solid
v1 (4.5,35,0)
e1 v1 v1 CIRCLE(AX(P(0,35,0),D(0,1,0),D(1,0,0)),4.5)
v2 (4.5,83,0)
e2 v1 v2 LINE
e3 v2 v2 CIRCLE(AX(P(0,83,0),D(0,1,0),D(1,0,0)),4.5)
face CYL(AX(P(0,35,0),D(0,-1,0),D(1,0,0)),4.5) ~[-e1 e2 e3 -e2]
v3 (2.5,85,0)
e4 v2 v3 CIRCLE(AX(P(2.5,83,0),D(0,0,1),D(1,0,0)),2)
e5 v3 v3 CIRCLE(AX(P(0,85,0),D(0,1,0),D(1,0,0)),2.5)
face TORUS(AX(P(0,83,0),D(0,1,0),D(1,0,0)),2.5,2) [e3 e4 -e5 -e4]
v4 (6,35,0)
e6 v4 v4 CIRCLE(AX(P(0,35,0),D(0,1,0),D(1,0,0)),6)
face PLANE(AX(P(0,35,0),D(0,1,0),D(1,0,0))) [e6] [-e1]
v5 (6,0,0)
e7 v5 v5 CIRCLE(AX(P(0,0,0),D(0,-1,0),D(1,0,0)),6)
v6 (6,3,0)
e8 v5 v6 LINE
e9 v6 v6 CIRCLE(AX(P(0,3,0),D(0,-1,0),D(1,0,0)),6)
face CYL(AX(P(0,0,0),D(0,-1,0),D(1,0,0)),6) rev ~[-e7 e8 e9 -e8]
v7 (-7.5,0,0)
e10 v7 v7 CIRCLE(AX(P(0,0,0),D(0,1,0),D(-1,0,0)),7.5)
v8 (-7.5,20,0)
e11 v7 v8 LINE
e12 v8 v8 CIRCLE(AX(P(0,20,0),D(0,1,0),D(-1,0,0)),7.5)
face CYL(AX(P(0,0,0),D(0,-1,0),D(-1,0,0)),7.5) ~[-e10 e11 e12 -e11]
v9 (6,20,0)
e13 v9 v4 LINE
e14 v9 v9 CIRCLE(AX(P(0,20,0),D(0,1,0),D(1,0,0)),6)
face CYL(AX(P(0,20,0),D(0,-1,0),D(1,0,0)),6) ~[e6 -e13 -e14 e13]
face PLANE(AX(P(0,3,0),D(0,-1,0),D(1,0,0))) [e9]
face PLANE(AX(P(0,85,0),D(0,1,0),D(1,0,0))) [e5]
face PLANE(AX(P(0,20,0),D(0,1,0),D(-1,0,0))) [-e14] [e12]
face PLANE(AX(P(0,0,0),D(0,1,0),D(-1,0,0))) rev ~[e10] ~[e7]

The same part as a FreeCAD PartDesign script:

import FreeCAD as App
import Part
import Sketcher
from FreeCAD import Vector


def edges_at(feature, points):
    """Names of the edges that pass closest to the given points."""
    edges = feature.Shape.Edges
    near = lambda p: min(range(len(edges)), key=lambda i: edges[i].distToShape(Part.Vertex(*p))[0])
    return sorted({f"Edge{near(p) + 1}" for p in points})

doc = App.newDocument("Part")
body = doc.addObject("PartDesign::Body", "Body")

sketch1 = body.newObject("Sketcher::SketchObject", "Sketch")
sketch1.AttachmentSupport = (doc.getObject("XZ_Plane"), [""])
sketch1.MapMode = "FlatFace"
sketch1.addGeometry(Part.Circle(Vector(0, 0, 0), Vector(0, 0, 1), 8), False)
sketch1.addConstraint(Sketcher.Constraint("Coincident", 0, 3, -1, 1))
sketch1.addConstraint(Sketcher.Constraint("Diameter", 0, 15.0))
pad1 = body.newObject("PartDesign::Pad", "Pad")
pad1.Profile = sketch1
pad1.Length = 20
pad1.Reversed = True

sketch2 = body.newObject("Sketcher::SketchObject", "Sketch001")
sketch2.AttachmentSupport = (doc.getObject("XZ_Plane"), [""])
sketch2.MapMode = "FlatFace"
sketch2.AttachmentOffset = App.Placement(Vector(0, 0, -20), App.Rotation())
sketch2.addGeometry(Part.Circle(Vector(0, 0, 0), Vector(0, 0, 1), 6), False)
sketch2.addConstraint(Sketcher.Constraint("Coincident", 0, 3, -1, 1))
sketch2.addConstraint(Sketcher.Constraint("Diameter", 0, 12.0))
pad2 = body.newObject("PartDesign::Pad", "Pad001")
pad2.Profile = sketch2
pad2.Length = 15
pad2.Reversed = True

sketch3 = body.newObject("Sketcher::SketchObject", "Sketch002")
sketch3.AttachmentSupport = (doc.getObject("XZ_Plane"), [""])
sketch3.MapMode = "FlatFace"
sketch3.AttachmentOffset = App.Placement(Vector(0, 0, -35), App.Rotation())
sketch3.addGeometry(Part.Circle(Vector(0, 0, 0), Vector(0, 0, 1), 4.5), False)
sketch3.addConstraint(Sketcher.Constraint("Coincident", 0, 3, -1, 1))
sketch3.addConstraint(Sketcher.Constraint("Diameter", 0, 9.0))
pad3 = body.newObject("PartDesign::Pad", "Pad002")
pad3.Profile = sketch3
pad3.Length = 50
pad3.Reversed = True
doc.recompute()

fillet = body.newObject("PartDesign::Fillet", "Fillet")
fillet.Base = (pad3, edges_at(pad3, [(-4.5, 85, 0)]))
fillet.Radius = 2

sketch4 = body.newObject("Sketcher::SketchObject", "Sketch003")
sketch4.AttachmentSupport = (doc.getObject("XZ_Plane"), [""])
sketch4.MapMode = "FlatFace"
sketch4.addGeometry(Part.Circle(Vector(0, 0, 0), Vector(0, 0, 1), 6), False)
sketch4.addConstraint(Sketcher.Constraint("Coincident", 0, 3, -1, 1))
sketch4.addConstraint(Sketcher.Constraint("Diameter", 0, 12.0))
pocket1 = body.newObject("PartDesign::Pocket", "Pocket")
pocket1.Profile = sketch4
pocket1.Length = 3

doc.recompute()
